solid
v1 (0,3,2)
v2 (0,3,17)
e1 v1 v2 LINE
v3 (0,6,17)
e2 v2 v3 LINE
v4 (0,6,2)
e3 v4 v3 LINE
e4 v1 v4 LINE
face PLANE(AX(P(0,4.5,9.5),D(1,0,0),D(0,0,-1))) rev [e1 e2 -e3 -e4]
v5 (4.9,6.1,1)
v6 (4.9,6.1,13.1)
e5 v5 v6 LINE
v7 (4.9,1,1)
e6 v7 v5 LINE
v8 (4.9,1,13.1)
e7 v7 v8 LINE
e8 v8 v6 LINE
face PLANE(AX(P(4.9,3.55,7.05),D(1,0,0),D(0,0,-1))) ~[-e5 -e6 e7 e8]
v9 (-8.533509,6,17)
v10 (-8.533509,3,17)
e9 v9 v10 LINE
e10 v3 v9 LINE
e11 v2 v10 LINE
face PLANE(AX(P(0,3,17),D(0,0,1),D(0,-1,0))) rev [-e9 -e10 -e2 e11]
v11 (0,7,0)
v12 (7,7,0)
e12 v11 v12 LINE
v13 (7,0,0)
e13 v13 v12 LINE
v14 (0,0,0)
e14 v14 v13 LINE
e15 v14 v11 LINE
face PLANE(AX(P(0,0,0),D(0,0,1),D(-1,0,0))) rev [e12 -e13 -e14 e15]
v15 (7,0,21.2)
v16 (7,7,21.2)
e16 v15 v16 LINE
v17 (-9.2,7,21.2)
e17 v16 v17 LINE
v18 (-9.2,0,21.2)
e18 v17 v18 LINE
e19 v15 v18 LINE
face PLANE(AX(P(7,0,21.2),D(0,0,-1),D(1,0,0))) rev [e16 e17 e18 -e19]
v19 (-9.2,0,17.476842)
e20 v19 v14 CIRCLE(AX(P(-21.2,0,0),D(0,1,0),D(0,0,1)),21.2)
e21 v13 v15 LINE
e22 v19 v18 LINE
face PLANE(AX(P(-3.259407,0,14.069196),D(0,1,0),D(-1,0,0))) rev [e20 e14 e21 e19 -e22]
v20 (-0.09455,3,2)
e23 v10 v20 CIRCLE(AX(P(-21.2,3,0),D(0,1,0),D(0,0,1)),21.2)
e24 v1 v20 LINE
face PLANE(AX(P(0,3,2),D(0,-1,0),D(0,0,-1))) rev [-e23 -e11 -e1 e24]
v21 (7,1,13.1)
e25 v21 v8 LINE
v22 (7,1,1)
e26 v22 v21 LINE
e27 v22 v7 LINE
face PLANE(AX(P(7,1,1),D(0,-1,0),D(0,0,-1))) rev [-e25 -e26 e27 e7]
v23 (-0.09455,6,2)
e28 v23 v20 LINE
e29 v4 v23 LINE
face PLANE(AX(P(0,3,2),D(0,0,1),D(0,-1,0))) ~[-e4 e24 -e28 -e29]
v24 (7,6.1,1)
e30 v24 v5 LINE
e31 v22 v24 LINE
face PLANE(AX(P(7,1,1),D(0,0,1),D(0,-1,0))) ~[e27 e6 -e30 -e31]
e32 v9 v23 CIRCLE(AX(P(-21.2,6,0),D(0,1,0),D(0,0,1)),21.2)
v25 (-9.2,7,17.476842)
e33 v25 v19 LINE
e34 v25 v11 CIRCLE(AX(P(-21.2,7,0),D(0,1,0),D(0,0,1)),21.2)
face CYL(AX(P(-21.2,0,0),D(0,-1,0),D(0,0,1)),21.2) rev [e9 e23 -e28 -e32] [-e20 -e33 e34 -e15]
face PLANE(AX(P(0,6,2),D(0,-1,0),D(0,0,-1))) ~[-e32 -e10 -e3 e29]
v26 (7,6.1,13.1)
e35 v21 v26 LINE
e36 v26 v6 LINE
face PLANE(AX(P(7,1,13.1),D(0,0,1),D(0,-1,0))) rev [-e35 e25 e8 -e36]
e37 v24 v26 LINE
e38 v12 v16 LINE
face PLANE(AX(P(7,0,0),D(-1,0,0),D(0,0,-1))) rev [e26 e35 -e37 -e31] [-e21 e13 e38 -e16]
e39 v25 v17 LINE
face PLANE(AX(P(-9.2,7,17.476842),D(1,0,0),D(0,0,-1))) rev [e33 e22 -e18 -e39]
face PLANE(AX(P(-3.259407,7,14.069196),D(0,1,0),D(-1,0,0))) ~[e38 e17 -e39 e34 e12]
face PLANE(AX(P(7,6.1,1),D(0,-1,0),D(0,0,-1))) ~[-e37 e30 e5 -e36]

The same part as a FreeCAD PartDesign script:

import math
import FreeCAD as App
import Part
import Sketcher

V = App.Vector

doc = App.newDocument("Part")
body = doc.addObject("PartDesign::Body", "Body")

sketch1 = body.newObject("Sketcher::SketchObject", "Sketch")
sketch1.AttachmentSupport = (doc.getObject("XZ_Plane"), [""])
sketch1.MapMode = "FlatFace"
sketch1.addGeometry(Part.LineSegment(V(7, -21.2, 0), V(-21.2, -21.2, 0)), False)
sketch1.addGeometry(Part.ArcOfCircle(Part.Circle(V(-21.2, 0, 0), V(0, 0, 1), 21.2), math.radians(-90), math.radians(0)), False)
sketch1.addGeometry(Part.LineSegment(V(0, 0, 0), V(7, 0, 0)), False)
sketch1.addGeometry(Part.LineSegment(V(7, 0, 0), V(7, -21.2, 0)), False)
sketch1.addConstraint(Sketcher.Constraint("Tangent", 0, 2, 1, 1))
sketch1.addConstraint(Sketcher.Constraint("Coincident", 1, 2, 2, 1))
sketch1.addConstraint(Sketcher.Constraint("Coincident", 2, 2, 3, 1))
sketch1.addConstraint(Sketcher.Constraint("Coincident", 3, 2, 0, 1))
sketch1.addConstraint(Sketcher.Constraint("Horizontal", 0))
sketch1.addConstraint(Sketcher.Constraint("Horizontal", 2))
sketch1.addConstraint(Sketcher.Constraint("Vertical", 3))
sketch1.addConstraint(Sketcher.Constraint("Coincident", 1, 2, -1, 1))
sketch1.addConstraint(Sketcher.Constraint("PointOnObject", 1, 3, -1))
sketch1.addConstraint(Sketcher.Constraint("Radius", 1, 21.2))
sketch1.addConstraint(Sketcher.Constraint("DistanceX", 2, 1, 2, 2, 7.0))
pad1 = body.newObject("PartDesign::Pad", "Pad")
pad1.Profile = sketch1
pad1.Length = 7
pad1.Reversed = True

sketch2 = body.newObject("Sketcher::SketchObject", "Sketch001")
sketch2.AttachmentSupport = (doc.getObject("XZ_Plane"), [""])
sketch2.MapMode = "FlatFace"
sketch2.AttachmentOffset = App.Placement(V(0, 0, -7), App.Rotation())
sketch2.addGeometry(Part.LineSegment(V(-9.2, -17.476842, 0), V(-9.2, -21.2, 0)), False)
sketch2.addGeometry(Part.LineSegment(V(-9.2, -21.2, 0), V(-21.2, -21.2, 0)), False)
sketch2.addGeometry(Part.ArcOfCircle(Part.Circle(V(-21.2, 0, 0), V(0, 0, 1), 21.2), math.radians(-90), math.radians(-55.525615)), False)
sketch2.addConstraint(Sketcher.Constraint("Coincident", 0, 2, 1, 1))
sketch2.addConstraint(Sketcher.Constraint("Tangent", 1, 2, 2, 1))
sketch2.addConstraint(Sketcher.Constraint("Coincident", 2, 2, 0, 1))
sketch2.addConstraint(Sketcher.Constraint("Vertical", 0))
sketch2.addConstraint(Sketcher.Constraint("Horizontal", 1))
sketch2.addConstraint(Sketcher.Constraint("PointOnObject", 2, 3, -1))
sketch2.addConstraint(Sketcher.Constraint("Radius", 2, 21.2))
sketch2.addConstraint(Sketcher.Constraint("DistanceX", 1, 2, 1, 1, 12.0))
sketch2.addConstraint(Sketcher.Constraint("DistanceX", 2, 3, -1, 1, 21.2))
pocket1 = body.newObject("PartDesign::Pocket", "Pocket")
pocket1.Profile = sketch2
pocket1.Type = "ThroughAll"
pocket1.Reversed = True

sketch3 = body.newObject("Sketcher::SketchObject", "Sketch002")
sketch3.AttachmentSupport = (doc.getObject("YZ_Plane"), [""])
sketch3.MapMode = "FlatFace"
sketch3.addGeometry(Part.LineSegment(V(6, -2, 0), V(3, -2, 0)), False)
sketch3.addGeometry(Part.LineSegment(V(3, -2, 0), V(3, -17, 0)), False)
sketch3.addGeometry(Part.LineSegment(V(3, -17, 0), V(6, -17, 0)), False)
sketch3.addGeometry(Part.LineSegment(V(6, -17, 0), V(6, -2, 0)), False)
sketch3.addConstraint(Sketcher.Constraint("Coincident", 0, 2, 1, 1))
sketch3.addConstraint(Sketcher.Constraint("Coincident", 1, 2, 2, 1))
sketch3.addConstraint(Sketcher.Constraint("Coincident", 2, 2, 3, 1))
sketch3.addConstraint(Sketcher.Constraint("Coincident", 3, 2, 0, 1))
sketch3.addConstraint(Sketcher.Constraint("Horizontal", 0))
sketch3.addConstraint(Sketcher.Constraint("Vertical", 1))
sketch3.addConstraint(Sketcher.Constraint("Horizontal", 2))
sketch3.addConstraint(Sketcher.Constraint("Vertical", 3))
sketch3.addConstraint(Sketcher.Constraint("DistanceX", 0, 2, 0, 1, 3.0))
sketch3.addConstraint(Sketcher.Constraint("DistanceY", 1, 2, 1, 1, 15.0))
sketch3.addConstraint(Sketcher.Constraint("DistanceX", -1, 1, 0, 2, 3.0))
sketch3.addConstraint(Sketcher.Constraint("DistanceY", 0, 2, -1, 1, 2.0))
pocket2 = body.newObject("PartDesign::Pocket", "Pocket001")
pocket2.Profile = sketch3
pocket2.Length = 10

sketch4 = body.newObject("Sketcher::SketchObject", "Sketch003")
sketch4.AttachmentSupport = (doc.getObject("YZ_Plane"), [""])
sketch4.MapMode = "FlatFace"
sketch4.AttachmentOffset = App.Placement(V(0, 0, 7), App.Rotation())
sketch4.addGeometry(Part.LineSegment(V(6.1, -1, 0), V(1, -1, 0)), False)
sketch4.addGeometry(Part.LineSegment(V(1, -1, 0), V(1, -13.1, 0)), False)
sketch4.addGeometry(Part.LineSegment(V(1, -13.1, 0), V(6.1, -13.1, 0)), False)
sketch4.addGeometry(Part.LineSegment(V(6.1, -13.1, 0), V(6.1, -1, 0)), False)
sketch4.addConstraint(Sketcher.Constraint("Coincident", 0, 2, 1, 1))
sketch4.addConstraint(Sketcher.Constraint("Coincident", 1, 2, 2, 1))
sketch4.addConstraint(Sketcher.Constraint("Coincident", 2, 2, 3, 1))
sketch4.addConstraint(Sketcher.Constraint("Coincident", 3, 2, 0, 1))
sketch4.addConstraint(Sketcher.Constraint("Horizontal", 0))
sketch4.addConstraint(Sketcher.Constraint("Vertical", 1))
sketch4.addConstraint(Sketcher.Constraint("Horizontal", 2))
sketch4.addConstraint(Sketcher.Constraint("Vertical", 3))
sketch4.addConstraint(Sketcher.Constraint("DistanceX", 0, 2, 0, 1, 5.1))
sketch4.addConstraint(Sketcher.Constraint("DistanceY", 1, 2, 1, 1, 12.1))
sketch4.addConstraint(Sketcher.Constraint("DistanceX", -1, 1, 0, 2, 1.0))
sketch4.addConstraint(Sketcher.Constraint("DistanceY", 0, 2, -1, 1, 1.0))
pocket3 = body.newObject("PartDesign::Pocket", "Pocket002")
pocket3.Profile = sketch4
pocket3.Length = 2.1
body2 = doc.addObject("PartDesign::Body", "Body001")
doc.recompute()

mirroring = doc.addObject("Part::Mirroring", "Mirroring")
mirroring.Source = body
mirroring.Base = V(0, 7, 0)
mirroring.Normal = V(0, 0, -1)
body2.BaseFeature = mirroring
doc.recompute()
body.Visibility = False
mirroring.Visibility = False

doc.recompute()
